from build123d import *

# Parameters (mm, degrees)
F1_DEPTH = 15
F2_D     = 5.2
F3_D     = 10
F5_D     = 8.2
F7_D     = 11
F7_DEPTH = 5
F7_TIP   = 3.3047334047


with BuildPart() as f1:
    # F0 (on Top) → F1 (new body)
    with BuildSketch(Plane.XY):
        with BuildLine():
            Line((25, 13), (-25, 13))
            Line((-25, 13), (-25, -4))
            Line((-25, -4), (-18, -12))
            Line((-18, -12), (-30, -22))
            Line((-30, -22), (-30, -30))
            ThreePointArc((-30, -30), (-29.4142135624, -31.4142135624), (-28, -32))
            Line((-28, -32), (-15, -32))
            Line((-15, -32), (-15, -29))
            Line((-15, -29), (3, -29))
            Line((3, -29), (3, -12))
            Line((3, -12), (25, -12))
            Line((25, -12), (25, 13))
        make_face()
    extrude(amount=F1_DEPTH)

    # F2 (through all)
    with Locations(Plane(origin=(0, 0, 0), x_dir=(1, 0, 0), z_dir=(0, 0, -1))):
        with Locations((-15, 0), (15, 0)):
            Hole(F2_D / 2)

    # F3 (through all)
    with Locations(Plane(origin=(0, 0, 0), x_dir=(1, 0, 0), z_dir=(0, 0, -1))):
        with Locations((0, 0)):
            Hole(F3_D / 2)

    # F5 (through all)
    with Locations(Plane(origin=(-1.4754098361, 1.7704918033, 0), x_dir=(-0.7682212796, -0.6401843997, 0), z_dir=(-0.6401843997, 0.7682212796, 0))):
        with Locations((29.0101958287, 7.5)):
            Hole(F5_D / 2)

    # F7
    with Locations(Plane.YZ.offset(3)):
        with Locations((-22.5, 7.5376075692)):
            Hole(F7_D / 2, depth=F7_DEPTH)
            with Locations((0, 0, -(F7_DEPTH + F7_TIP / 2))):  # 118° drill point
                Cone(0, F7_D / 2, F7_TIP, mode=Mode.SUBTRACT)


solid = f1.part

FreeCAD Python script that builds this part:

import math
import FreeCAD as App
import Part
import Sketcher

doc = App.newDocument("Part")
body = doc.addObject("PartDesign::Body", "Body")

sketch1 = body.newObject("Sketcher::SketchObject", "Sketch")
sketch1.AttachmentSupport = (doc.getObject("XY_Plane"), [""])
sketch1.MapMode = "FlatFace"
sketch1.addGeometry(Part.LineSegment(App.Vector(25, 13, 0), App.Vector(-25, 13, 0)), False)
sketch1.addGeometry(Part.LineSegment(App.Vector(-25, 13, 0), App.Vector(-25, -4, 0)), False)
sketch1.addGeometry(Part.LineSegment(App.Vector(-25, -4, 0), App.Vector(-18, -12, 0)), False)
sketch1.addGeometry(Part.LineSegment(App.Vector(-18, -12, 0), App.Vector(-30, -22, 0)), False)
sketch1.addGeometry(Part.LineSegment(App.Vector(-30, -22, 0), App.Vector(-30, -30, 0)), False)
sketch1.addGeometry(Part.ArcOfCircle(Part.Circle(App.Vector(-28, -30, 0), App.Vector(0, 0, 1), 2), math.radians(180), math.radians(270)), False)
sketch1.addGeometry(Part.LineSegment(App.Vector(-28, -32, 0), App.Vector(-15, -32, 0)), False)
sketch1.addGeometry(Part.LineSegment(App.Vector(-15, -32, 0), App.Vector(-15, -29, 0)), False)
sketch1.addGeometry(Part.LineSegment(App.Vector(-15, -29, 0), App.Vector(3, -29, 0)), False)
sketch1.addGeometry(Part.LineSegment(App.Vector(3, -29, 0), App.Vector(3, -12, 0)), False)
sketch1.addGeometry(Part.LineSegment(App.Vector(3, -12, 0), App.Vector(25, -12, 0)), False)
sketch1.addGeometry(Part.LineSegment(App.Vector(25, -12, 0), App.Vector(25, 13, 0)), False)
sketch1.addConstraint(Sketcher.Constraint("Coincident", 0, 2, 1, 1))
sketch1.addConstraint(Sketcher.Constraint("Coincident", 1, 2, 2, 1))
sketch1.addConstraint(Sketcher.Constraint("Coincident", 2, 2, 3, 1))
sketch1.addConstraint(Sketcher.Constraint("Coincident", 3, 2, 4, 1))
sketch1.addConstraint(Sketcher.Constraint("Tangent", 4, 2, 5, 1))
sketch1.addConstraint(Sketcher.Constraint("Tangent", 5, 2, 6, 1))
sketch1.addConstraint(Sketcher.Constraint("Coincident", 6, 2, 7, 1))
sketch1.addConstraint(Sketcher.Constraint("Coincident", 7, 2, 8, 1))
sketch1.addConstraint(Sketcher.Constraint("Coincident", 8, 2, 9, 1))
sketch1.addConstraint(Sketcher.Constraint("Coincident", 9, 2, 10, 1))
sketch1.addConstraint(Sketcher.Constraint("Coincident", 10, 2, 11, 1))
sketch1.addConstraint(Sketcher.Constraint("Coincident", 11, 2, 0, 1))
sketch1.addConstraint(Sketcher.Constraint("Horizontal", 0))
sketch1.addConstraint(Sketcher.Constraint("Vertical", 1))
sketch1.addConstraint(Sketcher.Constraint("Vertical", 4))
sketch1.addConstraint(Sketcher.Constraint("Horizontal", 6))
sketch1.addConstraint(Sketcher.Constraint("Vertical", 7))
sketch1.addConstraint(Sketcher.Constraint("Horizontal", 8))
sketch1.addConstraint(Sketcher.Constraint("Vertical", 9))
sketch1.addConstraint(Sketcher.Constraint("Horizontal", 10))
sketch1.addConstraint(Sketcher.Constraint("Vertical", 11))
sketch1.addConstraint(Sketcher.Constraint("Horizontal", 2, 2, 9, 2))
sketch1.addConstraint(Sketcher.Constraint("Equal", 1, 9))
sketch1.addConstraint(Sketcher.Constraint("Radius", 5, 2.0))
sketch1.addConstraint(Sketcher.Constraint("DistanceX", 0, 2, 0, 1, 50.0))
sketch1.addConstraint(Sketcher.Constraint("DistanceX", 6, 1, 6, 2, 13.0))
sketch1.addConstraint(Sketcher.Constraint("DistanceX", 8, 1, 8, 2, 18.0))
sketch1.addConstraint(Sketcher.Constraint("DistanceX", 10, 1, 10, 2, 22.0))
sketch1.addConstraint(Sketcher.Constraint("DistanceY", 1, 2, 1, 1, 17.0))
sketch1.addConstraint(Sketcher.Constraint("DistanceY", 4, 2, 4, 1, 8.0))
sketch1.addConstraint(Sketcher.Constraint("DistanceY", 7, 1, 7, 2, 3.0))
sketch1.addConstraint(Sketcher.Constraint("DistanceY", 11, 1, 11, 2, 25.0))
sketch1.addConstraint(Sketcher.Constraint("DistanceX", 5, 3, -1, 1, 28.0))
sketch1.addConstraint(Sketcher.Constraint("DistanceY", 5, 3, -1, 1, 30.0))
sketch1.addConstraint(Sketcher.Constraint("DistanceX", 2, 2, -1, 1, 18.0))
pad1 = body.newObject("PartDesign::Pad", "Pad")
pad1.Profile = sketch1
pad1.Length = 15

sketch2 = body.newObject("Sketcher::SketchObject", "Sketch001")
sketch2.AttachmentSupport = (doc.getObject("XY_Plane"), [""])
sketch2.MapMode = "FlatFace"
sketch2.addGeometry(Part.Circle(App.Vector(-15, 0, 0), App.Vector(0, 0, 1), 2.6), False)
sketch2.addGeometry(Part.Circle(App.Vector(15, 0, 0), App.Vector(0, 0, 1), 2.6), False)
sketch2.addConstraint(Sketcher.Constraint("Equal", 0, 1))
sketch2.addConstraint(Sketcher.Constraint("Symmetric", 0, 3, 1, 3, -1, 1))
sketch2.addConstraint(Sketcher.Constraint("PointOnObject", 0, 3, -1))
sketch2.addConstraint(Sketcher.Constraint("Diameter", 0, 5.2))
sketch2.addConstraint(Sketcher.Constraint("DistanceX", 0, 3, -1, 1, 15.0))
doc.recompute()
hole = body.newObject("PartDesign::Hole", "Hole")
hole.Profile = sketch2
hole.ThreadType = "None"
hole.Diameter = 5.2
hole.DepthType = "ThroughAll"
hole.Reversed = True

sketch3 = body.newObject("Sketcher::SketchObject", "Sketch002")
sketch3.AttachmentSupport = (doc.getObject("XY_Plane"), [""])
sketch3.MapMode = "FlatFace"
sketch3.addGeometry(Part.Circle(App.Vector(0, 0, 0), App.Vector(0, 0, 1), 5), False)
sketch3.addConstraint(Sketcher.Constraint("Coincident", 0, 3, -1, 1))
sketch3.addConstraint(Sketcher.Constraint("Diameter", 0, 10.0))
doc.recompute()
hole2 = body.newObject("PartDesign::Hole", "Hole001")
hole2.Profile = sketch3
hole2.ThreadType = "None"
hole2.Diameter = 10
hole2.DepthType = "ThroughAll"
hole2.Reversed = True

sketch4 = body.newObject("Sketcher::SketchObject", "Sketch003")
sketch4.Placement = App.Placement(App.Vector(-1.47541, 1.770492, 0), App.Rotation(App.Vector(-0.76822128, -0.6401844, 0), App.Vector(0, 0, 1.000000001), App.Vector(-0.6401844, 0.76822128, 0), "ZXY"))
sketch4.addGeometry(Part.Circle(App.Vector(29, 7.5, 0), App.Vector(0, 0, 1), 4.1), False)
sketch4.addConstraint(Sketcher.Constraint("Diameter", 0, 8.2))
sketch4.addConstraint(Sketcher.Constraint("DistanceY", -1, 1, 0, 3, 7.5))
sketch4.addConstraint(Sketcher.Constraint("DistanceX", -1, 1, 0, 3, 29.010196))
doc.recompute()
hole3 = body.newObject("PartDesign::Hole", "Hole002")
hole3.Profile = sketch4
hole3.ThreadType = "None"
hole3.Diameter = 8.2
hole3.DepthType = "ThroughAll"

sketch5 = body.newObject("Sketcher::SketchObject", "Sketch004")
sketch5.AttachmentSupport = (doc.getObject("YZ_Plane"), [""])
sketch5.MapMode = "FlatFace"
sketch5.AttachmentOffset = App.Placement(App.Vector(0, 0, 3), App.Rotation())
sketch5.addGeometry(Part.Circle(App.Vector(-22, 8, 0), App.Vector(0, 0, 1), 6), False)
sketch5.addConstraint(Sketcher.Constraint("Diameter", 0, 11.0))
sketch5.addConstraint(Sketcher.Constraint("DistanceX", 0, 3, -1, 1, 22.5))
sketch5.addConstraint(Sketcher.Constraint("DistanceY", -1, 1, 0, 3, 7.537608))
doc.recompute()
hole4 = body.newObject("PartDesign::Hole", "Hole003")
hole4.Profile = sketch5
hole4.ThreadType = "None"
hole4.Diameter = 11
hole4.DepthType = "Dimension"
hole4.Depth = 5
hole4.DrillPoint = "Angled"
hole4.DrillPointAngle = 118

doc.recompute()
